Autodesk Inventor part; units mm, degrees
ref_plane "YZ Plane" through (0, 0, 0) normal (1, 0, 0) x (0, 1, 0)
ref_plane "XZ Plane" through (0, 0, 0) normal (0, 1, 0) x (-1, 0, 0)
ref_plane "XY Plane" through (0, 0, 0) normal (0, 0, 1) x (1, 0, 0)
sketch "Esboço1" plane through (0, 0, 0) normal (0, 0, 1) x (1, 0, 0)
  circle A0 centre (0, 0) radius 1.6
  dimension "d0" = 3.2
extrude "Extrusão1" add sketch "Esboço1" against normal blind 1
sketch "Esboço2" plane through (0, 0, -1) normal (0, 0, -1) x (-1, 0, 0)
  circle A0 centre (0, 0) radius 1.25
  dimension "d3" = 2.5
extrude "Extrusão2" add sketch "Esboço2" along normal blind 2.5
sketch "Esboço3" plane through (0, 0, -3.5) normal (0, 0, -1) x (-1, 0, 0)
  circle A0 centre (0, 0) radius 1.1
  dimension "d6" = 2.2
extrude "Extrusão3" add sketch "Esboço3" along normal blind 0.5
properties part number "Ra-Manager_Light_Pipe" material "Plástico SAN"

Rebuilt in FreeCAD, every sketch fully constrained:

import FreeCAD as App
import Part
import Sketcher

doc = App.newDocument("Part")
body = doc.addObject("PartDesign::Body", "Body")

sketch1 = body.newObject("Sketcher::SketchObject", "Sketch")
sketch1.AttachmentSupport = (doc.getObject("XY_Plane"), [""])
sketch1.MapMode = "FlatFace"
sketch1.addGeometry(Part.Circle(App.Vector(0, 0, 0), App.Vector(0, 0, 1), 1.6), False)
sketch1.addConstraint([
    Sketcher.Constraint("Coincident", 0, 3, -1, 1),
    Sketcher.Constraint("Diameter", 0, 3.2),
])
pad1 = body.newObject("PartDesign::Pad", "Pad")
pad1.Profile = sketch1
pad1.Length = 1
pad1.Reversed = True

sketch2 = body.newObject("Sketcher::SketchObject", "Sketch001")
sketch2.AttachmentSupport = (doc.getObject("XY_Plane"), [""])
sketch2.MapMode = "FlatFace"
sketch2.AttachmentOffset = App.Placement(App.Vector(0, 0, -1), App.Rotation())
sketch2.addGeometry(Part.Circle(App.Vector(0, 0, 0), App.Vector(0, 0, 1), 1.2), False)
sketch2.addConstraint([
    Sketcher.Constraint("Coincident", 0, 3, -1, 1),
    Sketcher.Constraint("Diameter", 0, 2.5),
])
pad2 = body.newObject("PartDesign::Pad", "Pad001")
pad2.Profile = sketch2
pad2.Length = 2.5
pad2.Reversed = True

sketch3 = body.newObject("Sketcher::SketchObject", "Sketch002")
sketch3.AttachmentSupport = (doc.getObject("XY_Plane"), [""])
sketch3.MapMode = "FlatFace"
sketch3.AttachmentOffset = App.Placement(App.Vector(0, 0, -3.5), App.Rotation())
sketch3.addGeometry(Part.Circle(App.Vector(0, 0, 0), App.Vector(0, 0, 1), 1.1), False)
sketch3.addConstraint([
    Sketcher.Constraint("Coincident", 0, 3, -1, 1),
    Sketcher.Constraint("Diameter", 0, 2.2),
])
pad3 = body.newObject("PartDesign::Pad", "Pad002")
pad3.Profile = sketch3
pad3.Length = 0.5
pad3.Reversed = True

doc.recompute()
